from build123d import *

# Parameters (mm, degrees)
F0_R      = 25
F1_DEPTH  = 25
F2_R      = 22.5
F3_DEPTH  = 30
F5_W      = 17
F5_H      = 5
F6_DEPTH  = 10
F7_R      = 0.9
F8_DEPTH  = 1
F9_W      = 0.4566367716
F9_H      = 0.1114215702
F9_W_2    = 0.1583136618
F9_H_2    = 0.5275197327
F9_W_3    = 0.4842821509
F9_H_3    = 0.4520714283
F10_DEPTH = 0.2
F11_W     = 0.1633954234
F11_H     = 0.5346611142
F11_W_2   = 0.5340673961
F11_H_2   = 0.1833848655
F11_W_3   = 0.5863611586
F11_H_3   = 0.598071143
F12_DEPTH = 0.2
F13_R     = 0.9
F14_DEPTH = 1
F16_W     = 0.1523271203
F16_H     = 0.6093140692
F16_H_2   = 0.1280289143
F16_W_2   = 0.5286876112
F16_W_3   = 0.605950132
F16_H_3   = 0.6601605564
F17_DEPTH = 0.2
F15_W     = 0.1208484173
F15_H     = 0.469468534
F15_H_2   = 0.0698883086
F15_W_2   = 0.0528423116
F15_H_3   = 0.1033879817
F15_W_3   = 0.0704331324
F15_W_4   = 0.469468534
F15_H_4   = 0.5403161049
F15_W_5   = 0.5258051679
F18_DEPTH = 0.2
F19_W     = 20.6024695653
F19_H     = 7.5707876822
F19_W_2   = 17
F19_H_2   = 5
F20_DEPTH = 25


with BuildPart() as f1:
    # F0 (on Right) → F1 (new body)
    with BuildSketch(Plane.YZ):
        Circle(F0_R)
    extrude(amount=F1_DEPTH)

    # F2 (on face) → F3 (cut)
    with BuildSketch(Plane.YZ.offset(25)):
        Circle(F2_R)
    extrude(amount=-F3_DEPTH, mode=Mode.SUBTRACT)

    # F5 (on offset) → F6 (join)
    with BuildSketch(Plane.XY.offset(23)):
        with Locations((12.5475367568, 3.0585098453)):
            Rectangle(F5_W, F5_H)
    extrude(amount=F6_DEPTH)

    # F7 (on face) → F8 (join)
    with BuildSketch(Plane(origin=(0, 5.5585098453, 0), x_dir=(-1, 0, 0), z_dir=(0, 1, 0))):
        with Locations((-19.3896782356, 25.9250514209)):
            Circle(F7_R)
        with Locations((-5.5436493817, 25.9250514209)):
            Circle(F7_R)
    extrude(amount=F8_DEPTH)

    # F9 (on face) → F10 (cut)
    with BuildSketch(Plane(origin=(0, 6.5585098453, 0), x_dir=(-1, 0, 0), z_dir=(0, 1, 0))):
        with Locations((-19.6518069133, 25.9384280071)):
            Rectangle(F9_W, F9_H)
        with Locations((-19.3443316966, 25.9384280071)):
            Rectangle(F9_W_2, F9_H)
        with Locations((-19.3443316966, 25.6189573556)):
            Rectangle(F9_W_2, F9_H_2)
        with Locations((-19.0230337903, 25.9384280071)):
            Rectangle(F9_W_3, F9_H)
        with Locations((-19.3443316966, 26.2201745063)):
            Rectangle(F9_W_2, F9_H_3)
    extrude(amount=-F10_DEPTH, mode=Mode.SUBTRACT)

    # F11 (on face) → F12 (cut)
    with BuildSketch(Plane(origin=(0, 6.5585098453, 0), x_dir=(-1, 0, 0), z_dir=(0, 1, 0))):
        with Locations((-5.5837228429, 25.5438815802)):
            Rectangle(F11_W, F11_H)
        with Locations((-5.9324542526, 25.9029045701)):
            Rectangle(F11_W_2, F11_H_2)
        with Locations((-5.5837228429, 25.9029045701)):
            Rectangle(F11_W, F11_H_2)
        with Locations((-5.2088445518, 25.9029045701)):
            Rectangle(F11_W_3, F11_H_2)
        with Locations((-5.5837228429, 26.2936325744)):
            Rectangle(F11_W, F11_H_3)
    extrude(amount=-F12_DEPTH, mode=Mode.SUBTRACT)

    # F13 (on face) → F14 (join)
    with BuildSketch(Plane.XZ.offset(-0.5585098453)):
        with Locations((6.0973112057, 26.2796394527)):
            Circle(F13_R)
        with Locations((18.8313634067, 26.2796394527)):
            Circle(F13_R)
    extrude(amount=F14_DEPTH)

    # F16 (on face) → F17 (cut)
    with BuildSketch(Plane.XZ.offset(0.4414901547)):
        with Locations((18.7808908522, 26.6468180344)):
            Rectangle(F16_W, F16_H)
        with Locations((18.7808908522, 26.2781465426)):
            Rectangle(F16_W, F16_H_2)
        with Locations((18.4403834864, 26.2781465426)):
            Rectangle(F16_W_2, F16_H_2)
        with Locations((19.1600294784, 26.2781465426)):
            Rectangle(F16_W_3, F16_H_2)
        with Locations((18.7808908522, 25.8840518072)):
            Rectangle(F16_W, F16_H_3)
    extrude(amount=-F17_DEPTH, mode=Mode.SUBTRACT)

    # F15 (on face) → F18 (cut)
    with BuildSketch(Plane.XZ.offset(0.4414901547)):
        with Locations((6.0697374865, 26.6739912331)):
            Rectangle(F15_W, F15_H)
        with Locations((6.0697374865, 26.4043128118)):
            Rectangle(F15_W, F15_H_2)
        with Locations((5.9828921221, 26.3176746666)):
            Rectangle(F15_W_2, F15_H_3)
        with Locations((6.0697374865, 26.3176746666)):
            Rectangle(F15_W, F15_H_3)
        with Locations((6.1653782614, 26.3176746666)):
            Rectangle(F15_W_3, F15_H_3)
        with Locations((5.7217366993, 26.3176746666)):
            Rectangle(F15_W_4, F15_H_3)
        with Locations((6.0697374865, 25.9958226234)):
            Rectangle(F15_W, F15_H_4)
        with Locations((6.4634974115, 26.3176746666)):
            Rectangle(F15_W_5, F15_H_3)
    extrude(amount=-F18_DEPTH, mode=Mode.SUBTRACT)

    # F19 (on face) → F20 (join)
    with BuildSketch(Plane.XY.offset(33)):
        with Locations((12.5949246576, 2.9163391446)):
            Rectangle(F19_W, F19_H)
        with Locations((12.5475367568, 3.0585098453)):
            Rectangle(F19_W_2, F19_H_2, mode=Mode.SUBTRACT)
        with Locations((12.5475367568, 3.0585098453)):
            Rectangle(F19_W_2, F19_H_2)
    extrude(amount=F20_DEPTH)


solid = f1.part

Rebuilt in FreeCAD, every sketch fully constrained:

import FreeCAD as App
import Part
import Sketcher

V = App.Vector

doc = App.newDocument("Part")
body = doc.addObject("PartDesign::Body", "Body")

sketch1 = body.newObject("Sketcher::SketchObject", "Sketch")
sketch1.AttachmentSupport = (doc.getObject("YZ_Plane"), [""])
sketch1.MapMode = "FlatFace"
sketch1.addGeometry(Part.Circle(V(0, 0, 0), V(0, 0, 1), 25), False)
sketch1.addConstraint([
    Sketcher.Constraint("Coincident", 0, 3, -1, 1),
    Sketcher.Constraint("Diameter", 0, 50.0),
])
pad1 = body.newObject("PartDesign::Pad", "Pad")
pad1.Profile = sketch1
pad1.Length = 25

sketch2 = body.newObject("Sketcher::SketchObject", "Sketch001")
sketch2.AttachmentSupport = (doc.getObject("YZ_Plane"), [""])
sketch2.MapMode = "FlatFace"
sketch2.AttachmentOffset = App.Placement(V(0, 0, 25), App.Rotation())
sketch2.addGeometry(Part.Circle(V(0, 0, 0), V(0, 0, 1), 22.5), False)
sketch2.addConstraint([
    Sketcher.Constraint("Coincident", 0, 3, -1, 1),
    Sketcher.Constraint("Diameter", 0, 45.0),
])
pocket1 = body.newObject("PartDesign::Pocket", "Pocket")
pocket1.Profile = sketch2
pocket1.Length = 30

sketch3 = body.newObject("Sketcher::SketchObject", "Sketch002")
sketch3.AttachmentSupport = (doc.getObject("XY_Plane"), [""])
sketch3.MapMode = "FlatFace"
sketch3.AttachmentOffset = App.Placement(V(0, 0, 23), App.Rotation())
sketch3.addGeometry([
    Part.LineSegment(V(4.047537, 5.55851, 0), V(4.047537, 0.55851, 0)),
    Part.LineSegment(V(4.047537, 0.55851, 0), V(21.047537, 0.55851, 0)),
    Part.LineSegment(V(21.047537, 0.55851, 0), V(21.047537, 5.55851, 0)),
    Part.LineSegment(V(21.047537, 5.55851, 0), V(4.047537, 5.55851, 0)),
], False)
sketch3.addConstraint([
    Sketcher.Constraint("Coincident", 0, 2, 1, 1),
    Sketcher.Constraint("Coincident", 1, 2, 2, 1),
    Sketcher.Constraint("Coincident", 2, 2, 3, 1),
    Sketcher.Constraint("Coincident", 3, 2, 0, 1),
    Sketcher.Constraint("Vertical", 0),
    Sketcher.Constraint("Horizontal", 1),
    Sketcher.Constraint("Vertical", 2),
    Sketcher.Constraint("Horizontal", 3),
    Sketcher.Constraint("DistanceX", 1, 1, 1, 2, 17.0),
    Sketcher.Constraint("DistanceY", 0, 2, 0, 1, 5.0),
    Sketcher.Constraint("DistanceY", -1, 1, 0, 2, 0.55851),
    Sketcher.Constraint("DistanceX", -1, 1, 0, 2, 4.047537),
])
pad2 = body.newObject("PartDesign::Pad", "Pad001")
pad2.Profile = sketch3
pad2.Length = 10

sketch4 = body.newObject("Sketcher::SketchObject", "Sketch003")
sketch4.AttachmentSupport = (doc.getObject("XZ_Plane"), [""])
sketch4.MapMode = "FlatFace"
sketch4.AttachmentOffset = App.Placement(V(0, 0, -5.55851), App.Rotation())
sketch4.addGeometry([
    Part.Circle(V(19.389678, 25.925051, 0), V(0, 0, 1), 0.9),
    Part.Circle(V(5.543649, 25.925051, 0), V(0, 0, 1), 0.9),
], False)
sketch4.addConstraint([
    Sketcher.Constraint("Equal", 0, 1),
    Sketcher.Constraint("Horizontal", 0, 3, 1, 3),
    Sketcher.Constraint("Diameter", 0, 1.8),
    Sketcher.Constraint("DistanceX", -1, 1, 0, 3, 19.389678),
    Sketcher.Constraint("DistanceY", -1, 1, 0, 3, 25.925051),
    Sketcher.Constraint("DistanceX", -1, 1, 1, 3, 5.543649),
])
pad3 = body.newObject("PartDesign::Pad", "Pad002")
pad3.Profile = sketch4
pad3.Length = 1
pad3.Reversed = True

sketch5 = body.newObject("Sketcher::SketchObject", "Sketch004")
sketch5.AttachmentSupport = (doc.getObject("XZ_Plane"), [""])
sketch5.MapMode = "FlatFace"
sketch5.AttachmentOffset = App.Placement(V(0, 0, -6.55851), App.Rotation())
sketch5.addGeometry([
    Part.LineSegment(V(19.880125, 25.994139, 0), V(19.880125, 25.882717, 0)),
    Part.LineSegment(V(19.880125, 25.882717, 0), V(19.423489, 25.882717, 0)),
    Part.LineSegment(V(19.423489, 25.882717, 0), V(19.423489, 25.355197, 0)),
    Part.LineSegment(V(19.423489, 25.355197, 0), V(19.265175, 25.355197, 0)),
    Part.LineSegment(V(19.265175, 25.355197, 0), V(19.265175, 25.882717, 0)),
    Part.LineSegment(V(19.265175, 25.882717, 0), V(18.780893, 25.882717, 0)),
    Part.LineSegment(V(18.780893, 25.882717, 0), V(18.780893, 25.994139, 0)),
    Part.LineSegment(V(18.780893, 25.994139, 0), V(19.265175, 25.994139, 0)),
    Part.LineSegment(V(19.265175, 25.994139, 0), V(19.265175, 26.44621, 0)),
    Part.LineSegment(V(19.265175, 26.44621, 0), V(19.423489, 26.44621, 0)),
    Part.LineSegment(V(19.423489, 26.44621, 0), V(19.423489, 25.994139, 0)),
    Part.LineSegment(V(19.423489, 25.994139, 0), V(19.880125, 25.994139, 0)),
], False)
sketch5.addConstraint([
    Sketcher.Constraint("Coincident", 0, 2, 1, 1),
    Sketcher.Constraint("Coincident", 1, 2, 2, 1),
    Sketcher.Constraint("Coincident", 2, 2, 3, 1),
    Sketcher.Constraint("Coincident", 3, 2, 4, 1),
    Sketcher.Constraint("Coincident", 4, 2, 5, 1),
    Sketcher.Constraint("Coincident", 5, 2, 6, 1),
    Sketcher.Constraint("Coincident", 6, 2, 7, 1),
    Sketcher.Constraint("Coincident", 7, 2, 8, 1),
    Sketcher.Constraint("Coincident", 8, 2, 9, 1),
    Sketcher.Constraint("Coincident", 9, 2, 10, 1),
    Sketcher.Constraint("Coincident", 10, 2, 11, 1),
    Sketcher.Constraint("Coincident", 11, 2, 0, 1),
    Sketcher.Constraint("Vertical", 0),
    Sketcher.Constraint("Horizontal", 1),
    Sketcher.Constraint("Vertical", 2),
    Sketcher.Constraint("Horizontal", 3),
    Sketcher.Constraint("Vertical", 4),
    Sketcher.Constraint("Horizontal", 5),
    Sketcher.Constraint("Vertical", 6),
    Sketcher.Constraint("Horizontal", 7),
    Sketcher.Constraint("Vertical", 8),
    Sketcher.Constraint("Horizontal", 9),
    Sketcher.Constraint("Vertical", 10),
    Sketcher.Constraint("Horizontal", 11),
    Sketcher.Constraint("Horizontal", 1, 2, 4, 2),
    Sketcher.Constraint("Horizontal", 7, 2, 10, 2),
    Sketcher.Constraint("Vertical", 4, 2, 7, 2),
    Sketcher.Constraint("Vertical", 2, 2, 9, 2),
    Sketcher.Constraint("DistanceY", 0, 2, 0, 1, 0.111422),
    Sketcher.Constraint("DistanceY", 2, 2, 2, 1, 0.52752),
    Sketcher.Constraint("DistanceY", 8, 1, 8, 2, 0.452071),
    Sketcher.Constraint("DistanceX", 1, 2, 1, 1, 0.456637),
    Sketcher.Constraint("DistanceX", 3, 2, 3, 1, 0.158314),
    Sketcher.Constraint("DistanceX", 5, 2, 5, 1, 0.484282),
    Sketcher.Constraint("DistanceX", -1, 1, 1, 2, 19.423489),
    Sketcher.Constraint("DistanceY", -1, 1, 6, 2, 25.994139),
])
pocket2 = body.newObject("PartDesign::Pocket", "Pocket001")
pocket2.Profile = sketch5
pocket2.Length = 0.2
pocket2.Reversed = True

sketch6 = body.newObject("Sketcher::SketchObject", "Sketch005")
sketch6.AttachmentSupport = (doc.getObject("XZ_Plane"), [""])
sketch6.MapMode = "FlatFace"
sketch6.AttachmentOffset = App.Placement(V(0, 0, -6.55851), App.Rotation())
sketch6.addGeometry([
    Part.LineSegment(V(5.665421, 25.811212, 0), V(5.665421, 25.276551, 0)),
    Part.LineSegment(V(5.665421, 25.276551, 0), V(5.502025, 25.276551, 0)),
    Part.LineSegment(V(5.502025, 25.276551, 0), V(5.502025, 25.811212, 0)),
    Part.LineSegment(V(5.502025, 25.811212, 0), V(4.915664, 25.811212, 0)),
    Part.LineSegment(V(4.915664, 25.811212, 0), V(4.915664, 25.994597, 0)),
    Part.LineSegment(V(4.915664, 25.994597, 0), V(5.502025, 25.994597, 0)),
    Part.LineSegment(V(5.502025, 25.994597, 0), V(5.502025, 26.592668, 0)),
    Part.LineSegment(V(5.502025, 26.592668, 0), V(5.665421, 26.592668, 0)),
    Part.LineSegment(V(5.665421, 26.592668, 0), V(5.665421, 25.994597, 0)),
    Part.LineSegment(V(5.665421, 25.994597, 0), V(6.199488, 25.994597, 0)),
    Part.LineSegment(V(6.199488, 25.994597, 0), V(6.199488, 25.811212, 0)),
    Part.LineSegment(V(6.199488, 25.811212, 0), V(5.665421, 25.811212, 0)),
], False)
sketch6.addConstraint([
    Sketcher.Constraint("Coincident", 0, 2, 1, 1),
    Sketcher.Constraint("Coincident", 1, 2, 2, 1),
    Sketcher.Constraint("Coincident", 2, 2, 3, 1),
    Sketcher.Constraint("Coincident", 3, 2, 4, 1),
    Sketcher.Constraint("Coincident", 4, 2, 5, 1),
    Sketcher.Constraint("Coincident", 5, 2, 6, 1),
    Sketcher.Constraint("Coincident", 6, 2, 7, 1),
    Sketcher.Constraint("Coincident", 7, 2, 8, 1),
    Sketcher.Constraint("Coincident", 8, 2, 9, 1),
    Sketcher.Constraint("Coincident", 9, 2, 10, 1),
    Sketcher.Constraint("Coincident", 10, 2, 11, 1),
    Sketcher.Constraint("Coincident", 11, 2, 0, 1),
    Sketcher.Constraint("Vertical", 0),
    Sketcher.Constraint("Horizontal", 1),
    Sketcher.Constraint("Vertical", 2),
    Sketcher.Constraint("Horizontal", 3),
    Sketcher.Constraint("Vertical", 4),
    Sketcher.Constraint("Horizontal", 5),
    Sketcher.Constraint("Vertical", 6),
    Sketcher.Constraint("Horizontal", 7),
    Sketcher.Constraint("Vertical", 8),
    Sketcher.Constraint("Horizontal", 9),
    Sketcher.Constraint("Vertical", 10),
    Sketcher.Constraint("Horizontal", 11),
    Sketcher.Constraint("Horizontal", 5, 2, 8, 2),
    Sketcher.Constraint("Horizontal", 3, 2, 10, 2),
    Sketcher.Constraint("Vertical", 2, 2, 5, 2),
    Sketcher.Constraint("Vertical", 0, 2, 7, 2),
    Sketcher.Constraint("DistanceX", 3, 2, 3, 1, 0.586361),
    Sketcher.Constraint("DistanceY", 0, 2, 0, 1, 0.534661),
    Sketcher.Constraint("DistanceY", 6, 1, 6, 2, 0.598071),
    Sketcher.Constraint("DistanceX", 1, 2, 1, 1, 0.163395),
    Sketcher.Constraint("DistanceX", 9, 1, 9, 2, 0.534067),
    Sketcher.Constraint("DistanceY", 4, 1, 4, 2, 0.183385),
    Sketcher.Constraint("DistanceX", -1, 1, 0, 2, 5.665421),
    Sketcher.Constraint("DistanceY", -1, 1, 0, 2, 25.276551),
])
pocket3 = body.newObject("PartDesign::Pocket", "Pocket002")
pocket3.Profile = sketch6
pocket3.Length = 0.2
pocket3.Reversed = True

sketch7 = body.newObject("Sketcher::SketchObject", "Sketch006")
sketch7.AttachmentSupport = (doc.getObject("XZ_Plane"), [""])
sketch7.MapMode = "FlatFace"
sketch7.AttachmentOffset = App.Placement(V(0, 0, -0.55851), App.Rotation())
sketch7.addGeometry([
    Part.Circle(V(6.097311, 26.279639, 0), V(0, 0, 1), 0.9),
    Part.Circle(V(18.831363, 26.279639, 0), V(0, 0, 1), 0.9),
], False)
sketch7.addConstraint([
    Sketcher.Constraint("Equal", 0, 1),
    Sketcher.Constraint("Horizontal", 0, 3, 1, 3),
    Sketcher.Constraint("Diameter", 0, 1.8),
    Sketcher.Constraint("DistanceX", -1, 1, 0, 3, 6.097311),
    Sketcher.Constraint("DistanceY", -1, 1, 0, 3, 26.279639),
    Sketcher.Constraint("DistanceX", -1, 1, 1, 3, 18.831363),
])
pad4 = body.newObject("PartDesign::Pad", "Pad003")
pad4.Profile = sketch7
pad4.Length = 1

sketch8 = body.newObject("Sketcher::SketchObject", "Sketch007")
sketch8.AttachmentSupport = (doc.getObject("XZ_Plane"), [""])
sketch8.MapMode = "FlatFace"
sketch8.AttachmentOffset = App.Placement(V(0, 0, 0.44149), App.Rotation())
sketch8.addGeometry([
    Part.LineSegment(V(18.704727, 26.951475, 0), V(18.704727, 26.342161, 0)),
    Part.LineSegment(V(18.704727, 26.342161, 0), V(18.17604, 26.342161, 0)),
    Part.LineSegment(V(18.17604, 26.342161, 0), V(18.17604, 26.214132, 0)),
    Part.LineSegment(V(18.17604, 26.214132, 0), V(18.704727, 26.214132, 0)),
    Part.LineSegment(V(18.704727, 26.214132, 0), V(18.704727, 25.553972, 0)),
    Part.LineSegment(V(18.704727, 25.553972, 0), V(18.857054, 25.553972, 0)),
    Part.LineSegment(V(18.857054, 25.553972, 0), V(18.857054, 26.214132, 0)),
    Part.LineSegment(V(18.857054, 26.214132, 0), V(19.463005, 26.214132, 0)),
    Part.LineSegment(V(19.463005, 26.214132, 0), V(19.463005, 26.342161, 0)),
    Part.LineSegment(V(19.463005, 26.342161, 0), V(18.857054, 26.342161, 0)),
    Part.LineSegment(V(18.857054, 26.342161, 0), V(18.857054, 26.951475, 0)),
    Part.LineSegment(V(18.857054, 26.951475, 0), V(18.704727, 26.951475, 0)),
], False)
sketch8.addConstraint([
    Sketcher.Constraint("Coincident", 0, 2, 1, 1),
    Sketcher.Constraint("Coincident", 1, 2, 2, 1),
    Sketcher.Constraint("Coincident", 2, 2, 3, 1),
    Sketcher.Constraint("Coincident", 3, 2, 4, 1),
    Sketcher.Constraint("Coincident", 4, 2, 5, 1),
    Sketcher.Constraint("Coincident", 5, 2, 6, 1),
    Sketcher.Constraint("Coincident", 6, 2, 7, 1),
    Sketcher.Constraint("Coincident", 7, 2, 8, 1),
    Sketcher.Constraint("Coincident", 8, 2, 9, 1),
    Sketcher.Constraint("Coincident", 9, 2, 10, 1),
    Sketcher.Constraint("Coincident", 10, 2, 11, 1),
    Sketcher.Constraint("Coincident", 11, 2, 0, 1),
    Sketcher.Constraint("Vertical", 0),
    Sketcher.Constraint("Horizontal", 1),
    Sketcher.Constraint("Vertical", 2),
    Sketcher.Constraint("Horizontal", 3),
    Sketcher.Constraint("Vertical", 4),
    Sketcher.Constraint("Horizontal", 5),
    Sketcher.Constraint("Vertical", 6),
    Sketcher.Constraint("Horizontal", 7),
    Sketcher.Constraint("Vertical", 8),
    Sketcher.Constraint("Horizontal", 9),
    Sketcher.Constraint("Vertical", 10),
    Sketcher.Constraint("Horizontal", 11),
    Sketcher.Constraint("Horizontal", 3, 2, 6, 2),
    Sketcher.Constraint("Horizontal", 1, 2, 8, 2),
    Sketcher.Constraint("Vertical", 0, 2, 3, 2),
    Sketcher.Constraint("Vertical", 6, 2, 9, 2),
    Sketcher.Constraint("DistanceX", 7, 1, 7, 2, 0.60595),
    Sketcher.Constraint("DistanceY", 2, 2, 2, 1, 0.128029),
    Sketcher.Constraint("DistanceY", 4, 2, 4, 1, 0.660161),
    Sketcher.Constraint("DistanceX", 1, 2, 1, 1, 0.528688),
    Sketcher.Constraint("DistanceX", 5, 1, 5, 2, 0.152327),
    Sketcher.Constraint("DistanceY", 0, 2, 0, 1, 0.609314),
    Sketcher.Constraint("DistanceY", -1, 1, 0, 2, 26.342161),
    Sketcher.Constraint("DistanceX", -1, 1, 1, 2, 18.17604),
])
pocket4 = body.newObject("PartDesign::Pocket", "Pocket003")
pocket4.Profile = sketch8
pocket4.Length = 0.2

sketch9 = body.newObject("Sketcher::SketchObject", "Sketch008")
sketch9.AttachmentSupport = (doc.getObject("XZ_Plane"), [""])
sketch9.MapMode = "FlatFace"
sketch9.AttachmentOffset = App.Placement(V(0, 0, 0.44149), App.Rotation())
sketch9.addGeometry([
    Part.LineSegment(V(6.009313, 26.908725, 0), V(6.009313, 26.369369, 0)),
    Part.LineSegment(V(6.009313, 26.369369, 0), V(5.487002, 26.369369, 0)),
    Part.LineSegment(V(5.487002, 26.369369, 0), V(5.487002, 26.265981, 0)),
    Part.LineSegment(V(5.487002, 26.265981, 0), V(6.009313, 26.265981, 0)),
    Part.LineSegment(V(6.009313, 26.265981, 0), V(6.009313, 25.725665, 0)),
    Part.LineSegment(V(6.009313, 25.725665, 0), V(6.130162, 25.725665, 0)),
    Part.LineSegment(V(6.130162, 25.725665, 0), V(6.130162, 26.265981, 0)),
    Part.LineSegment(V(6.130162, 26.265981, 0), V(6.7264, 26.265981, 0)),
    Part.LineSegment(V(6.7264, 26.265981, 0), V(6.7264, 26.369369, 0)),
    Part.LineSegment(V(6.7264, 26.369369, 0), V(6.130162, 26.369369, 0)),
    Part.LineSegment(V(6.130162, 26.369369, 0), V(6.130162, 26.908725, 0)),
    Part.LineSegment(V(6.130162, 26.908725, 0), V(6.009313, 26.908725, 0)),
], False)
sketch9.addConstraint([
    Sketcher.Constraint("Coincident", 0, 2, 1, 1),
    Sketcher.Constraint("Coincident", 1, 2, 2, 1),
    Sketcher.Constraint("Coincident", 2, 2, 3, 1),
    Sketcher.Constraint("Coincident", 3, 2, 4, 1),
    Sketcher.Constraint("Coincident", 4, 2, 5, 1),
    Sketcher.Constraint("Coincident", 5, 2, 6, 1),
    Sketcher.Constraint("Coincident", 6, 2, 7, 1),
    Sketcher.Constraint("Coincident", 7, 2, 8, 1),
    Sketcher.Constraint("Coincident", 8, 2, 9, 1),
    Sketcher.Constraint("Coincident", 9, 2, 10, 1),
    Sketcher.Constraint("Coincident", 10, 2, 11, 1),
    Sketcher.Constraint("Coincident", 11, 2, 0, 1),
    Sketcher.Constraint("Vertical", 0),
    Sketcher.Constraint("Horizontal", 1),
    Sketcher.Constraint("Vertical", 2),
    Sketcher.Constraint("Horizontal", 3),
    Sketcher.Constraint("Vertical", 4),
    Sketcher.Constraint("Horizontal", 5),
    Sketcher.Constraint("Vertical", 6),
    Sketcher.Constraint("Horizontal", 7),
    Sketcher.Constraint("Vertical", 8),
    Sketcher.Constraint("Horizontal", 9),
    Sketcher.Constraint("Vertical", 10),
    Sketcher.Constraint("Horizontal", 11),
    Sketcher.Constraint("Horizontal", 3, 2, 6, 2),
    Sketcher.Constraint("Horizontal", 1, 2, 8, 2),
    Sketcher.Constraint("Vertical", 0, 2, 3, 2),
    Sketcher.Constraint("Vertical", 6, 2, 9, 2),
    Sketcher.Constraint("DistanceX", 1, 2, 1, 1, 0.522311),
    Sketcher.Constraint("DistanceX", 5, 1, 5, 2, 0.120848),
    Sketcher.Constraint("DistanceX", 7, 1, 7, 2, 0.596238),
    Sketcher.Constraint("DistanceX", -1, 1, 7, 2, 6.7264),
    Sketcher.Constraint("DistanceY", 0, 2, 0, 1, 0.539357),
    Sketcher.Constraint("DistanceY", 2, 2, 2, 1, 0.103388),
    Sketcher.Constraint("DistanceY", 4, 2, 4, 1, 0.540316),
    Sketcher.Constraint("DistanceY", -1, 1, 0, 2, 26.369369),
])
pocket5 = body.newObject("PartDesign::Pocket", "Pocket004")
pocket5.Profile = sketch9
pocket5.Length = 0.2

sketch10 = body.newObject("Sketcher::SketchObject", "Sketch009")
sketch10.AttachmentSupport = (doc.getObject("XY_Plane"), [""])
sketch10.MapMode = "FlatFace"
sketch10.AttachmentOffset = App.Placement(V(0, 0, 33), App.Rotation())
sketch10.addGeometry([
    Part.LineSegment(V(2.29369, 6.701733, 0), V(2.29369, -0.869055, 0)),
    Part.LineSegment(V(2.29369, -0.869055, 0), V(22.896159, -0.869055, 0)),
    Part.LineSegment(V(22.896159, -0.869055, 0), V(22.896159, 6.701733, 0)),
    Part.LineSegment(V(22.896159, 6.701733, 0), V(2.29369, 6.701733, 0)),
], False)
sketch10.addConstraint([
    Sketcher.Constraint("Coincident", 0, 2, 1, 1),
    Sketcher.Constraint("Coincident", 1, 2, 2, 1),
    Sketcher.Constraint("Coincident", 2, 2, 3, 1),
    Sketcher.Constraint("Coincident", 3, 2, 0, 1),
    Sketcher.Constraint("Vertical", 0),
    Sketcher.Constraint("Horizontal", 1),
    Sketcher.Constraint("Vertical", 2),
    Sketcher.Constraint("Horizontal", 3),
    Sketcher.Constraint("DistanceX", 1, 1, 1, 2, 20.60247),
    Sketcher.Constraint("DistanceY", 0, 2, 0, 1, 7.570788),
    Sketcher.Constraint("DistanceX", -1, 1, 0, 2, 2.29369),
    Sketcher.Constraint("DistanceY", 0, 2, -1, 1, 0.869055),
])
pad5 = body.newObject("PartDesign::Pad", "Pad004")
pad5.Profile = sketch10
pad5.Length = 25

doc.recompute()
